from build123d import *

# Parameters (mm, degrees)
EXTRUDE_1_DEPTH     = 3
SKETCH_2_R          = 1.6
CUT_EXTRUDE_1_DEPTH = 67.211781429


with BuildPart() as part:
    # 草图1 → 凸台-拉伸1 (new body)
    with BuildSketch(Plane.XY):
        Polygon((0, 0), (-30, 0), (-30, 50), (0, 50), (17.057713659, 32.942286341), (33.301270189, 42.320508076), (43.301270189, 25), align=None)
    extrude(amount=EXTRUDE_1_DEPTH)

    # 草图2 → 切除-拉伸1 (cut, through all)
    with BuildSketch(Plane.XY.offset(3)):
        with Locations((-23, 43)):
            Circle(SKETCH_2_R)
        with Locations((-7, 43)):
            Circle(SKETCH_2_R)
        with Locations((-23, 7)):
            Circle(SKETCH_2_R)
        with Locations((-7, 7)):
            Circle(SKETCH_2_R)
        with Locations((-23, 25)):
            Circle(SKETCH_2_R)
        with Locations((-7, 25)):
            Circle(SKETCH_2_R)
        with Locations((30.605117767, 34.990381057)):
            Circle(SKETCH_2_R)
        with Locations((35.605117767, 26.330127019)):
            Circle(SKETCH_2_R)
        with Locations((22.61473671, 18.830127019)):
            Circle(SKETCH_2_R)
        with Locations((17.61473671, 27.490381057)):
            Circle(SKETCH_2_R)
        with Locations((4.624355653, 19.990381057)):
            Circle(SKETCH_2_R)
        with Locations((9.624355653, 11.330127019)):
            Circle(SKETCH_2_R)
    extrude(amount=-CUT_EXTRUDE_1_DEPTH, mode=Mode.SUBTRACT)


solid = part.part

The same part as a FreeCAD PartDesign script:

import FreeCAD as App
import Part
import Sketcher

V = App.Vector
Q = App.Units.Quantity

doc = App.newDocument("Part")
params = doc.addObject("Spreadsheet::Sheet", "Params")
for row, (alias, value) in enumerate([
    ("sketch1_width", "30 mm"),
    ("sketch1_height", "50 mm"),
    ("sketch1_length", "50 mm"),
    ("sketch1_length2", "20 mm"),
    ("pad1_length", "3 mm"),
    ("sketch2_diameter", "3.2 mm"),
], start=1):
    params.set(f"A{row}", alias)
    params.set(f"B{row}", "=" + value)
    params.setAlias(f"B{row}", alias)

body = doc.addObject("PartDesign::Body", "Body")

# Sketch on XY plane
sketch1 = doc.addObject("Sketcher::SketchObject", "Sketch")
body.addObject(sketch1)
sketch1.AttachmentSupport = (doc.XY_Plane, [""])
sketch1.MapMode = "FlatFace"
sketch1.addGeometry([
    Part.LineSegment(V(-30, 0, 0), V(0, 0, 0)),  # 0
    Part.LineSegment(V(0, 0, 0), V(43, 25, 0)),  # 1
    Part.LineSegment(V(43, 25, 0), V(33, 42, 0)),  # 2
    Part.LineSegment(V(33, 42, 0), V(17, 33, 0)),  # 3
    Part.LineSegment(V(17, 33, 0), V(0, 50, 0)),  # 4
    Part.LineSegment(V(0, 50, 0), V(-30, 50, 0)),  # 5
    Part.LineSegment(V(-30, 50, 0), V(-30, 0, 0)),  # 6
], False)
sketch1.addConstraint([
    Sketcher.Constraint("Coincident", 0, 2, 1, 1),
    Sketcher.Constraint("Coincident", 1, 2, 2, 1),
    Sketcher.Constraint("Coincident", 2, 2, 3, 1),
    Sketcher.Constraint("Coincident", 3, 2, 4, 1),
    Sketcher.Constraint("Coincident", 4, 2, 5, 1),
    Sketcher.Constraint("Coincident", 5, 2, 6, 1),
    Sketcher.Constraint("Coincident", 6, 2, 0, 1),
    Sketcher.Constraint("Horizontal", 0),
    Sketcher.Constraint("Horizontal", 5),
    Sketcher.Constraint("Vertical", 6),
    Sketcher.Constraint("Coincident", 0, 2, -1, 1),
    Sketcher.Constraint("PointOnObject", 4, 2, -2),
    Sketcher.Constraint("Perpendicular", 1, 2),
    Sketcher.Constraint("Perpendicular", 2, 3),
    Sketcher.Constraint("DistanceX", 0, 1, 0, 2, Q("30 mm")),
    Sketcher.Constraint("DistanceY", 6, 2, 6, 1, Q("50 mm")),
    Sketcher.Constraint("Angle", 1, Q("30 deg")),
    Sketcher.Constraint("Angle", 4, Q("135 deg")),
    Sketcher.Constraint("Distance", 1, Q("50 mm")),
    Sketcher.Constraint("Distance", 2, Q("20 mm")),
])
sketch1.setExpression("Constraints[14]", "Params.sketch1_width")
sketch1.setExpression("Constraints[15]", "Params.sketch1_height")
sketch1.setExpression("Constraints[18]", "Params.sketch1_length")
sketch1.setExpression("Constraints[19]", "Params.sketch1_length2")
pad1 = doc.addObject("PartDesign::Pad", "Pad")
body.addObject(pad1)
pad1.Profile = sketch1
pad1.setExpression("Length", "Params.pad1_length")

# Sketch on XY plane
sketch2 = doc.addObject("Sketcher::SketchObject", "Sketch001")
body.addObject(sketch2)
sketch2.AttachmentSupport = (doc.XY_Plane, [""])
sketch2.MapMode = "FlatFace"
sketch2.AttachmentOffset = App.Placement(V(0, 0, 3), App.Rotation())
sketch2.addGeometry([
    Part.Circle(V(-23, 43, 0), V(0, 0, 1), 1.6),  # 0
    Part.Circle(V(-7, 43, 0), V(0, 0, 1), 1.6),  # 1
    Part.Circle(V(-23, 7, 0), V(0, 0, 1), 1.6),  # 2
    Part.Circle(V(-7, 7, 0), V(0, 0, 1), 1.6),  # 3
    Part.Circle(V(-23, 25, 0), V(0, 0, 1), 1.6),  # 4
    Part.Circle(V(-7, 25, 0), V(0, 0, 1), 1.6),  # 5
    Part.Circle(V(30.6, 35, 0), V(0, 0, 1), 1.6),  # 6
    Part.Circle(V(35.6, 26.3, 0), V(0, 0, 1), 1.6),  # 7
    Part.Circle(V(22.6, 18.8, 0), V(0, 0, 1), 1.6),  # 8
    Part.Circle(V(17.6, 27.5, 0), V(0, 0, 1), 1.6),  # 9
    Part.Circle(V(4.6, 20, 0), V(0, 0, 1), 1.6),  # 10
    Part.Circle(V(9.6, 11.3, 0), V(0, 0, 1), 1.6),  # 11
], False)
sketch2.addConstraint([
    Sketcher.Constraint("Equal", 0, 1),
    Sketcher.Constraint("Equal", 1, 2),
    Sketcher.Constraint("Equal", 2, 3),
    Sketcher.Constraint("Equal", 3, 4),
    Sketcher.Constraint("Equal", 4, 5),
    Sketcher.Constraint("Equal", 5, 6),
    Sketcher.Constraint("Equal", 6, 7),
    Sketcher.Constraint("Equal", 7, 8),
    Sketcher.Constraint("Equal", 8, 9),
    Sketcher.Constraint("Equal", 9, 10),
    Sketcher.Constraint("Equal", 10, 11),
    Sketcher.Constraint("Horizontal", 0, 3, 1, 3),
    Sketcher.Constraint("Horizontal", 2, 3, 3, 3),
    Sketcher.Constraint("Horizontal", 4, 3, 5, 3),
    Sketcher.Constraint("Vertical", 0, 3, 2, 3),
    Sketcher.Constraint("Vertical", 1, 3, 3, 3),
    Sketcher.Constraint("Vertical", 2, 3, 4, 3),
    Sketcher.Constraint("Vertical", 3, 3, 5, 3),
    Sketcher.Constraint("Diameter", 0, Q("3.2 mm")),
    Sketcher.Constraint("DistanceX", 0, 3, -1, 1, Q("23 mm")),
    Sketcher.Constraint("DistanceY", -1, 1, 0, 3, Q("43 mm")),
    Sketcher.Constraint("DistanceX", 1, 3, -1, 1, Q("7 mm")),
    Sketcher.Constraint("DistanceY", -1, 1, 2, 3, Q("7 mm")),
    Sketcher.Constraint("DistanceY", -1, 1, 4, 3, Q("25 mm")),
    Sketcher.Constraint("DistanceX", 6, 3, 7, 3, Q("5 mm")),
    Sketcher.Constraint("DistanceX", 9, 3, 8, 3, Q("5 mm")),
    Sketcher.Constraint("DistanceX", 10, 3, 11, 3, Q("5 mm")),
    Sketcher.Constraint("DistanceY", 8, 3, 7, 3, Q("7.5 mm")),
    Sketcher.Constraint("DistanceY", 9, 3, 6, 3, Q("7.5 mm")),
    Sketcher.Constraint("DistanceY", 10, 3, 9, 3, Q("7.5 mm")),
    Sketcher.Constraint("DistanceY", 11, 3, 8, 3, Q("7.5 mm")),
    Sketcher.Constraint("DistanceY", -1, 1, 6, 3, Q("34.990381 mm")),
    Sketcher.Constraint("DistanceX", 8, 3, 7, 3, Q("12.990381 mm")),
    Sketcher.Constraint("DistanceX", 10, 3, 9, 3, Q("12.990381 mm")),
    Sketcher.Constraint("DistanceX", -1, 1, 6, 3, Q("30.605118 mm")),
    Sketcher.Constraint("DistanceY", -1, 1, 7, 3, Q("26.330127 mm")),
])
sketch2.setExpression("Constraints[18]", "Params.sketch2_diameter")
pocket1 = doc.addObject("PartDesign::Pocket", "Pocket")
body.addObject(pocket1)
pocket1.Profile = sketch2
pocket1.Type = "ThroughAll"

doc.recompute()
